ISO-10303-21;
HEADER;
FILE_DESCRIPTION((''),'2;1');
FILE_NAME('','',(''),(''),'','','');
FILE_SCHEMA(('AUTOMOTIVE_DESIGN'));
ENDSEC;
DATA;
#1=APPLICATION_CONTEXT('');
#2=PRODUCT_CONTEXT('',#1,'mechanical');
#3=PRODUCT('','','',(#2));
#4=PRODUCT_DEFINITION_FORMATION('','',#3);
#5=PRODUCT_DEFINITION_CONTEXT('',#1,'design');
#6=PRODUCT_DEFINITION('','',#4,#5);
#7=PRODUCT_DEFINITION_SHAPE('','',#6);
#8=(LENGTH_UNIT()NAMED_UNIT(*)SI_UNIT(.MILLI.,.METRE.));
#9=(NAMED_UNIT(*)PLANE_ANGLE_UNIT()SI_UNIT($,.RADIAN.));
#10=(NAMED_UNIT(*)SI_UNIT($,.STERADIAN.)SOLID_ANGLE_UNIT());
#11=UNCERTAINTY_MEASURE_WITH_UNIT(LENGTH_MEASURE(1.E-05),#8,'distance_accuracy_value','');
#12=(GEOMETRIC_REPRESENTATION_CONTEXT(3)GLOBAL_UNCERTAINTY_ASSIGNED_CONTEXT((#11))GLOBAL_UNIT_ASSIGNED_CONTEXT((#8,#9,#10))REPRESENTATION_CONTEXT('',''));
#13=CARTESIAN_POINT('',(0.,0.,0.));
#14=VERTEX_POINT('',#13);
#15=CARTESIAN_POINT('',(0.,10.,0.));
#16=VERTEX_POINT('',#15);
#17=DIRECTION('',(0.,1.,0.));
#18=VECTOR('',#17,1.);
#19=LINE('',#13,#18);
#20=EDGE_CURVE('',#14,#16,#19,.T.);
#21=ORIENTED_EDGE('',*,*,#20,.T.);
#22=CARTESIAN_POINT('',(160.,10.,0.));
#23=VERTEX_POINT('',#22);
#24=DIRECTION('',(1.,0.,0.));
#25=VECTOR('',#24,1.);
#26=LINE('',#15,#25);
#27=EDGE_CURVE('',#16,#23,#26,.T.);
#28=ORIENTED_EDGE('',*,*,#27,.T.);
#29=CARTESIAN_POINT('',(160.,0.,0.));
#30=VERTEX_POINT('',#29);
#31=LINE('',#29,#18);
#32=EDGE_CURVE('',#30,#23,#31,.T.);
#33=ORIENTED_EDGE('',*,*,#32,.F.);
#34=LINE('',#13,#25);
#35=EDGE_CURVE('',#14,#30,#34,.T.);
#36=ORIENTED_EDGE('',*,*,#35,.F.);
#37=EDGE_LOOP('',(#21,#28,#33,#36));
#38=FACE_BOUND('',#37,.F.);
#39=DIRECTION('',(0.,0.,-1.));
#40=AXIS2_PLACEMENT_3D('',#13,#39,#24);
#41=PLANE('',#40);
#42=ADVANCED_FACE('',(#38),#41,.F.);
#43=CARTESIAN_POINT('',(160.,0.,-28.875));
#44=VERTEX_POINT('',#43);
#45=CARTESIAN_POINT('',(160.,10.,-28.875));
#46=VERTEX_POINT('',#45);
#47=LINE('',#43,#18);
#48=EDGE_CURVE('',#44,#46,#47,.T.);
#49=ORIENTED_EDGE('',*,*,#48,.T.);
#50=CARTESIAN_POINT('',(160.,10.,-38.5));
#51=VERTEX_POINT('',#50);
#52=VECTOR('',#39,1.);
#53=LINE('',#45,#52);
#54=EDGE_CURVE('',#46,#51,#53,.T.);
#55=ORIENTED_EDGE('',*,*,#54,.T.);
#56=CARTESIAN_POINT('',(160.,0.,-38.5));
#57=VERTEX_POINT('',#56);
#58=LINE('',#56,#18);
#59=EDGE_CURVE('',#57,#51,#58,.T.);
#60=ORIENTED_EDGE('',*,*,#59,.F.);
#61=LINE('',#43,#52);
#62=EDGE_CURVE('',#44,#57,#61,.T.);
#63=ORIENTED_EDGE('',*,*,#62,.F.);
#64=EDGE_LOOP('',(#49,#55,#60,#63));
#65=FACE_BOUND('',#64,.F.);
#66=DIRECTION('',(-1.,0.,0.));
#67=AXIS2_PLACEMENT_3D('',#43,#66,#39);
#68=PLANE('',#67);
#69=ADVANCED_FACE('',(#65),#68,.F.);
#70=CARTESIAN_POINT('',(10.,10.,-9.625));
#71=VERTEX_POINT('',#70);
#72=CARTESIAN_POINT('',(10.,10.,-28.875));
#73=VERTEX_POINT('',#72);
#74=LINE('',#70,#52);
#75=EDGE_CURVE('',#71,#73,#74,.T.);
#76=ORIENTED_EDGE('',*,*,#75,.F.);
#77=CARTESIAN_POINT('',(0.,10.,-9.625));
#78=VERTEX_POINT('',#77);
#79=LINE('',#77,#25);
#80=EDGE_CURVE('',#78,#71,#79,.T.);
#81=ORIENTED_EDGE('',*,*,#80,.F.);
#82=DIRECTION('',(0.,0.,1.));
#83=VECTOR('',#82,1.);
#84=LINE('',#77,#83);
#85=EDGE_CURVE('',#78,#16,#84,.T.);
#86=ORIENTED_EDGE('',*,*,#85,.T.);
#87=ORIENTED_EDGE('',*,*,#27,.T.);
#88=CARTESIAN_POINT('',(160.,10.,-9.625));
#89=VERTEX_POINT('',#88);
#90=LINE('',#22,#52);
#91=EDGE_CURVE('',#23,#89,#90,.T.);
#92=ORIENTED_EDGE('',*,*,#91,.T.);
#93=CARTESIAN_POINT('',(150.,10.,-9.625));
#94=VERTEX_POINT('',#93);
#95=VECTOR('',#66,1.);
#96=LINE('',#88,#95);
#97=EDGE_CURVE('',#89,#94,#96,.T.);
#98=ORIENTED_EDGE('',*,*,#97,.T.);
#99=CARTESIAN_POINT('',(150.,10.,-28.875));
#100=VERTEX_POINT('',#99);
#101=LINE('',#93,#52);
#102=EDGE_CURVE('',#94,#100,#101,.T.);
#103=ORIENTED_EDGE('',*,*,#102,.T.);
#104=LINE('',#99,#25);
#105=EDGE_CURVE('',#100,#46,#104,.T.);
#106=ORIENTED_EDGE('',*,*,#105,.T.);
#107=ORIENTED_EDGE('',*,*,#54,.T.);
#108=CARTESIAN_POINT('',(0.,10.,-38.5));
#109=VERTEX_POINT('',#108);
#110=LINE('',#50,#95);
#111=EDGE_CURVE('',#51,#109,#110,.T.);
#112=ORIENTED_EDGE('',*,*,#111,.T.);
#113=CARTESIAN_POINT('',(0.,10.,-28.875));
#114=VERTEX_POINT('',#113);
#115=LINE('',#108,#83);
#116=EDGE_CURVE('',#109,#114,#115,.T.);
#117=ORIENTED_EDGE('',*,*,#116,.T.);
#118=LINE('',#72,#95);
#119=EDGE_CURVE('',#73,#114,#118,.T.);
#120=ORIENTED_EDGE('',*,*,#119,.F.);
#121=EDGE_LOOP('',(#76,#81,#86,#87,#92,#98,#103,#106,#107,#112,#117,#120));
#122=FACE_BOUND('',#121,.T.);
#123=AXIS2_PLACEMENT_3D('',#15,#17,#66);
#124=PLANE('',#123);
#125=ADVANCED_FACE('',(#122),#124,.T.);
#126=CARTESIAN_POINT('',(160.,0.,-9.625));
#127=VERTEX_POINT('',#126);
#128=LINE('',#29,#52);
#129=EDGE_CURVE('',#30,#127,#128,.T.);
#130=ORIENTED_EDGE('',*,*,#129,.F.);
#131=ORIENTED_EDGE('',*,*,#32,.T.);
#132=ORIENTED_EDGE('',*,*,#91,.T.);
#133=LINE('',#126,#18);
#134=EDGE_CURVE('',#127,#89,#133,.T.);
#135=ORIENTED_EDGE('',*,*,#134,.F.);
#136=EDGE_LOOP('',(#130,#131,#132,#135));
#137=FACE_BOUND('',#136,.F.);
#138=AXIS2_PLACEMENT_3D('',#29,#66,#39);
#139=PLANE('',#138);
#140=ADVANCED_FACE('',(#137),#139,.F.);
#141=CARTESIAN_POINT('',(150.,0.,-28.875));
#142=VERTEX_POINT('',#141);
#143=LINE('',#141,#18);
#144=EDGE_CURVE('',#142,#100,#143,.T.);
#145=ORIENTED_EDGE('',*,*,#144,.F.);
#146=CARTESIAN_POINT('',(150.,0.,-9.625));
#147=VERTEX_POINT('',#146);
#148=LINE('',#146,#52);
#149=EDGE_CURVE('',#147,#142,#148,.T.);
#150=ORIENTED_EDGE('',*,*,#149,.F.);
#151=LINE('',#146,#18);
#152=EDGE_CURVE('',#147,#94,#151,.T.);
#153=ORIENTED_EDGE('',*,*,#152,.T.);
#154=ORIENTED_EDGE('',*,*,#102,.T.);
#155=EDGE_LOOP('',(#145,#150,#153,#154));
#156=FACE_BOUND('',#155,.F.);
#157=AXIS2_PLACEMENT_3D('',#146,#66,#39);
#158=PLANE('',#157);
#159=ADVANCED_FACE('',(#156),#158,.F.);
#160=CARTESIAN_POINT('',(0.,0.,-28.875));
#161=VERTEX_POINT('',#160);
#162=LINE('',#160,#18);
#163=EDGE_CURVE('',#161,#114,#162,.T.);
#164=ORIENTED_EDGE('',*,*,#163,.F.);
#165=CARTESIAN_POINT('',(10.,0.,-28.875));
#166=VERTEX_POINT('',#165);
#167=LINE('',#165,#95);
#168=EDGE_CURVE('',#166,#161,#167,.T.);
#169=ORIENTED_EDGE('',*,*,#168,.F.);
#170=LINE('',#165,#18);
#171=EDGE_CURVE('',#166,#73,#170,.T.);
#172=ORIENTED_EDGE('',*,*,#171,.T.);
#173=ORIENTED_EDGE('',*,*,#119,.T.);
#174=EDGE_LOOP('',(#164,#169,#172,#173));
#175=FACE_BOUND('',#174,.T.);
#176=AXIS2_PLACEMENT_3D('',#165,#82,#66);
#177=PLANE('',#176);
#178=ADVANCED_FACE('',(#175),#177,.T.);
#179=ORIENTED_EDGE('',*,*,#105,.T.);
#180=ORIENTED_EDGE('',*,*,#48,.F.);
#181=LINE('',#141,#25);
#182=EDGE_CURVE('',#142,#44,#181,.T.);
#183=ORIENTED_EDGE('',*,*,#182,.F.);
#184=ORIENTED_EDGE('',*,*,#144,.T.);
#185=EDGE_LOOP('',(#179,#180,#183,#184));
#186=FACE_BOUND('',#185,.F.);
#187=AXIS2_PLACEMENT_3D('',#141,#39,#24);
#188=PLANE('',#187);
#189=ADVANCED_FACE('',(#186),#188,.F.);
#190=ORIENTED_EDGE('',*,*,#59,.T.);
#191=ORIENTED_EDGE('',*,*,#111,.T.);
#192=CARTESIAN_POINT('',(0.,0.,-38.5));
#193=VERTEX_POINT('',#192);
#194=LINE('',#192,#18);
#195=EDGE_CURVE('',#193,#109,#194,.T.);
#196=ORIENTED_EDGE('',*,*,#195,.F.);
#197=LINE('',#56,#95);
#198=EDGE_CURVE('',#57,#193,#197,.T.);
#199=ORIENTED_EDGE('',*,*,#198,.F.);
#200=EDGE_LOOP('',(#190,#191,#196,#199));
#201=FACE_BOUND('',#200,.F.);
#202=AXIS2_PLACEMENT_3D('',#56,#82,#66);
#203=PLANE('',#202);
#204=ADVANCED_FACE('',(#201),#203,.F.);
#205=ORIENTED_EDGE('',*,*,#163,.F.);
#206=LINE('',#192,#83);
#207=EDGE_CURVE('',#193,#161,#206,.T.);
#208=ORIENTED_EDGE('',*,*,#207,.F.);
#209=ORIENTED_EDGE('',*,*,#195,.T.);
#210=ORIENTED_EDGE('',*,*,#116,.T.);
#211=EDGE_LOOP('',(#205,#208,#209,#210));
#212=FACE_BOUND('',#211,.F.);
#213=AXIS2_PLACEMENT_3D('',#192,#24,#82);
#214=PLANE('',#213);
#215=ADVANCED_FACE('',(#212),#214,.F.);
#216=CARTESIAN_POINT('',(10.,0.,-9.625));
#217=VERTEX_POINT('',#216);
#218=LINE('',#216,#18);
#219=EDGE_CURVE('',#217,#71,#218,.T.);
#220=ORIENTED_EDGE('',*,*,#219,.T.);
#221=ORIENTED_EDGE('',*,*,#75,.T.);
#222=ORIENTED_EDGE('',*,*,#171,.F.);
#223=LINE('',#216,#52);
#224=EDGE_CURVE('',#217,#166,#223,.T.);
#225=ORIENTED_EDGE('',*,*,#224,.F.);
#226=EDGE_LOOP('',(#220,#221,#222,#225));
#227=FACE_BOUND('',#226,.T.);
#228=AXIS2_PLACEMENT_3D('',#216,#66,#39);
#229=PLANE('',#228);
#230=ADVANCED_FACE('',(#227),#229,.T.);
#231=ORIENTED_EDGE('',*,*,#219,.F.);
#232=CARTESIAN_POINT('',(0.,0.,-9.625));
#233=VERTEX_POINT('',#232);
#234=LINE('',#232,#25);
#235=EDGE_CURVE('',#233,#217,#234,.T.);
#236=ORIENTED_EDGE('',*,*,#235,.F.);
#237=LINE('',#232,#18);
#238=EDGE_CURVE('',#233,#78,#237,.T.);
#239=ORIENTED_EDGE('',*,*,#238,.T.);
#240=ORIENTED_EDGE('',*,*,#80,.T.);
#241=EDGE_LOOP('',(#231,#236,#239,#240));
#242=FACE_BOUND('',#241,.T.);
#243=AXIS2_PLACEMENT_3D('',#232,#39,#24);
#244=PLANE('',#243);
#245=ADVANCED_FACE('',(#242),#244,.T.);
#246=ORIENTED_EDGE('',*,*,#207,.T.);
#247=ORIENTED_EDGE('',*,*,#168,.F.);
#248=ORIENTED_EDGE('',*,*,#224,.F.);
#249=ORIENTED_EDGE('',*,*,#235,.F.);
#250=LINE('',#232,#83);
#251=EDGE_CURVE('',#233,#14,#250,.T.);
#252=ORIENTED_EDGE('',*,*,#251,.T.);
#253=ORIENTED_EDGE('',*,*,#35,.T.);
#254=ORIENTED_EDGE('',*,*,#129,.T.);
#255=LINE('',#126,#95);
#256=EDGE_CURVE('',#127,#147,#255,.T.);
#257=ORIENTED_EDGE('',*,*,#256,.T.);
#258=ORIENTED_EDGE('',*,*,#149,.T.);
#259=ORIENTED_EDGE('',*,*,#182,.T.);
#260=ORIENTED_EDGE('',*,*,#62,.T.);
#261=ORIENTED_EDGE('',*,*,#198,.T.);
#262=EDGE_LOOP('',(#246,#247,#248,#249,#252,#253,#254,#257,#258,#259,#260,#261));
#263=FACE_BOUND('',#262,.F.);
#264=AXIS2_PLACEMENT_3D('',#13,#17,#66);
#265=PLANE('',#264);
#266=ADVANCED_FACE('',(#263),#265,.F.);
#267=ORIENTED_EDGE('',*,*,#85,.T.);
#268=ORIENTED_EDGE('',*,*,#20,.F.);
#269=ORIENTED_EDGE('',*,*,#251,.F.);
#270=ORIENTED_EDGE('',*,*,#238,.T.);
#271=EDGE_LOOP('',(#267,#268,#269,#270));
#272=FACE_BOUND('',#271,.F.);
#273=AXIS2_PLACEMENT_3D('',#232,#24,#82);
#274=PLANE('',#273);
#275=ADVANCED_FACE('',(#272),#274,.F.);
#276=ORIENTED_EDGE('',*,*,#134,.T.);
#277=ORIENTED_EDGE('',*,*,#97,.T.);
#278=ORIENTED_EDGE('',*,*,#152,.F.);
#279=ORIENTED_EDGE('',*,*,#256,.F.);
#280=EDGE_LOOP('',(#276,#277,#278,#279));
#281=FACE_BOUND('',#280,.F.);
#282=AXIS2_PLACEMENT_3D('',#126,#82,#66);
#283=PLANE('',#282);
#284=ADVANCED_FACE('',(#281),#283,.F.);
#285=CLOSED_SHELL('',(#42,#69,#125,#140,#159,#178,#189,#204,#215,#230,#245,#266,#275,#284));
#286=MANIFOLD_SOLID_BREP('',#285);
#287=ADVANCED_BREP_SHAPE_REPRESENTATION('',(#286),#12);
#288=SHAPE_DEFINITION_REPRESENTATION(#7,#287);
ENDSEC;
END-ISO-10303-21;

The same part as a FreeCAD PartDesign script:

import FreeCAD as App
import Part
import Sketcher
from FreeCAD import Vector
Q = App.Units.Quantity


def add_polygon(sketch, points):
    """Adds a closed chain of lines whose ends are joined by coincident constraints."""
    first, n = sketch.GeometryCount, len(points)
    for a, b in zip(points, points[1:] + points[:1]):
        sketch.addGeometry(Part.LineSegment(App.Vector(*a, 0), App.Vector(*b, 0)), False)
    for i in range(n):
        sketch.addConstraint(Sketcher.Constraint("Coincident", first + i, 2, first + (i + 1) % n, 1))

doc = App.newDocument("Part")
params = doc.addObject("Spreadsheet::Sheet", "Params")
for row, (alias, value) in enumerate([
    ("sketch1_width", "160 mm"),
    ("sketch1_width2", "10 mm"),
    ("sketch1_height", "19.25 mm"),
    ("pad1_length", "10 mm"),
], start=1):
    params.set(f"A{row}", alias)
    params.set(f"B{row}", "=" + value)
    params.setAlias(f"B{row}", alias)

body = doc.addObject("PartDesign::Body", "Body")

# Sketch on XZ plane
sketch1 = body.newObject("Sketcher::SketchObject", "Sketch")
sketch1.AttachmentSupport = (doc.getObject("XZ_Plane"), [""])
sketch1.MapMode = "FlatFace"
add_polygon(sketch1, [(0, -9.625), (0, 0), (160, 0), (160, -9.625), (150, -9.625), (150, -28.875), (160, -28.875), (160, -38.5), (0, -38.5), (0, -28.875), (10, -28.875), (10, -9.625)])  # lines 0-11
sketch1.addConstraint([
    Sketcher.Constraint("Vertical", 0),
    Sketcher.Constraint("Horizontal", 1),
    Sketcher.Constraint("Vertical", 2),
    Sketcher.Constraint("Horizontal", 3),
    Sketcher.Constraint("Vertical", 4),
    Sketcher.Constraint("Horizontal", 5),
    Sketcher.Constraint("Vertical", 6),
    Sketcher.Constraint("Horizontal", 7),
    Sketcher.Constraint("Vertical", 8),
    Sketcher.Constraint("Horizontal", 9),
    Sketcher.Constraint("Vertical", 10),
    Sketcher.Constraint("Horizontal", 11),
    Sketcher.Constraint("Coincident", 0, 2, -1, 1),
    Sketcher.Constraint("PointOnObject", 7, 2, -2),
    Sketcher.Constraint("Horizontal", 5, 2, 8, 2),
    Sketcher.Constraint("Horizontal", 3, 2, 10, 2),
    Sketcher.Constraint("Vertical", 2, 2, 5, 2),
    Sketcher.Constraint("Equal", 5, 9),
    Sketcher.Constraint("Equal", 2, 6),
    Sketcher.Constraint("DistanceX", 1, 1, 1, 2, Q("160 mm")),
    Sketcher.Constraint("DistanceX", 3, 2, 3, 1, Q("10 mm")),
    Sketcher.Constraint("DistanceY", 4, 2, 4, 1, Q("19.25 mm")),
    Sketcher.Constraint("DistanceY", 6, 2, -1, 1, Q("38.5 mm")),
])
sketch1.setExpression("Constraints[31]", "Params.sketch1_width")
sketch1.setExpression("Constraints[32]", "Params.sketch1_width2")
sketch1.setExpression("Constraints[33]", "Params.sketch1_height")
pad1 = body.newObject("PartDesign::Pad", "Pad")
pad1.Profile = sketch1
pad1.setExpression("Length", "Params.pad1_length")
pad1.Reversed = True

doc.recompute()
